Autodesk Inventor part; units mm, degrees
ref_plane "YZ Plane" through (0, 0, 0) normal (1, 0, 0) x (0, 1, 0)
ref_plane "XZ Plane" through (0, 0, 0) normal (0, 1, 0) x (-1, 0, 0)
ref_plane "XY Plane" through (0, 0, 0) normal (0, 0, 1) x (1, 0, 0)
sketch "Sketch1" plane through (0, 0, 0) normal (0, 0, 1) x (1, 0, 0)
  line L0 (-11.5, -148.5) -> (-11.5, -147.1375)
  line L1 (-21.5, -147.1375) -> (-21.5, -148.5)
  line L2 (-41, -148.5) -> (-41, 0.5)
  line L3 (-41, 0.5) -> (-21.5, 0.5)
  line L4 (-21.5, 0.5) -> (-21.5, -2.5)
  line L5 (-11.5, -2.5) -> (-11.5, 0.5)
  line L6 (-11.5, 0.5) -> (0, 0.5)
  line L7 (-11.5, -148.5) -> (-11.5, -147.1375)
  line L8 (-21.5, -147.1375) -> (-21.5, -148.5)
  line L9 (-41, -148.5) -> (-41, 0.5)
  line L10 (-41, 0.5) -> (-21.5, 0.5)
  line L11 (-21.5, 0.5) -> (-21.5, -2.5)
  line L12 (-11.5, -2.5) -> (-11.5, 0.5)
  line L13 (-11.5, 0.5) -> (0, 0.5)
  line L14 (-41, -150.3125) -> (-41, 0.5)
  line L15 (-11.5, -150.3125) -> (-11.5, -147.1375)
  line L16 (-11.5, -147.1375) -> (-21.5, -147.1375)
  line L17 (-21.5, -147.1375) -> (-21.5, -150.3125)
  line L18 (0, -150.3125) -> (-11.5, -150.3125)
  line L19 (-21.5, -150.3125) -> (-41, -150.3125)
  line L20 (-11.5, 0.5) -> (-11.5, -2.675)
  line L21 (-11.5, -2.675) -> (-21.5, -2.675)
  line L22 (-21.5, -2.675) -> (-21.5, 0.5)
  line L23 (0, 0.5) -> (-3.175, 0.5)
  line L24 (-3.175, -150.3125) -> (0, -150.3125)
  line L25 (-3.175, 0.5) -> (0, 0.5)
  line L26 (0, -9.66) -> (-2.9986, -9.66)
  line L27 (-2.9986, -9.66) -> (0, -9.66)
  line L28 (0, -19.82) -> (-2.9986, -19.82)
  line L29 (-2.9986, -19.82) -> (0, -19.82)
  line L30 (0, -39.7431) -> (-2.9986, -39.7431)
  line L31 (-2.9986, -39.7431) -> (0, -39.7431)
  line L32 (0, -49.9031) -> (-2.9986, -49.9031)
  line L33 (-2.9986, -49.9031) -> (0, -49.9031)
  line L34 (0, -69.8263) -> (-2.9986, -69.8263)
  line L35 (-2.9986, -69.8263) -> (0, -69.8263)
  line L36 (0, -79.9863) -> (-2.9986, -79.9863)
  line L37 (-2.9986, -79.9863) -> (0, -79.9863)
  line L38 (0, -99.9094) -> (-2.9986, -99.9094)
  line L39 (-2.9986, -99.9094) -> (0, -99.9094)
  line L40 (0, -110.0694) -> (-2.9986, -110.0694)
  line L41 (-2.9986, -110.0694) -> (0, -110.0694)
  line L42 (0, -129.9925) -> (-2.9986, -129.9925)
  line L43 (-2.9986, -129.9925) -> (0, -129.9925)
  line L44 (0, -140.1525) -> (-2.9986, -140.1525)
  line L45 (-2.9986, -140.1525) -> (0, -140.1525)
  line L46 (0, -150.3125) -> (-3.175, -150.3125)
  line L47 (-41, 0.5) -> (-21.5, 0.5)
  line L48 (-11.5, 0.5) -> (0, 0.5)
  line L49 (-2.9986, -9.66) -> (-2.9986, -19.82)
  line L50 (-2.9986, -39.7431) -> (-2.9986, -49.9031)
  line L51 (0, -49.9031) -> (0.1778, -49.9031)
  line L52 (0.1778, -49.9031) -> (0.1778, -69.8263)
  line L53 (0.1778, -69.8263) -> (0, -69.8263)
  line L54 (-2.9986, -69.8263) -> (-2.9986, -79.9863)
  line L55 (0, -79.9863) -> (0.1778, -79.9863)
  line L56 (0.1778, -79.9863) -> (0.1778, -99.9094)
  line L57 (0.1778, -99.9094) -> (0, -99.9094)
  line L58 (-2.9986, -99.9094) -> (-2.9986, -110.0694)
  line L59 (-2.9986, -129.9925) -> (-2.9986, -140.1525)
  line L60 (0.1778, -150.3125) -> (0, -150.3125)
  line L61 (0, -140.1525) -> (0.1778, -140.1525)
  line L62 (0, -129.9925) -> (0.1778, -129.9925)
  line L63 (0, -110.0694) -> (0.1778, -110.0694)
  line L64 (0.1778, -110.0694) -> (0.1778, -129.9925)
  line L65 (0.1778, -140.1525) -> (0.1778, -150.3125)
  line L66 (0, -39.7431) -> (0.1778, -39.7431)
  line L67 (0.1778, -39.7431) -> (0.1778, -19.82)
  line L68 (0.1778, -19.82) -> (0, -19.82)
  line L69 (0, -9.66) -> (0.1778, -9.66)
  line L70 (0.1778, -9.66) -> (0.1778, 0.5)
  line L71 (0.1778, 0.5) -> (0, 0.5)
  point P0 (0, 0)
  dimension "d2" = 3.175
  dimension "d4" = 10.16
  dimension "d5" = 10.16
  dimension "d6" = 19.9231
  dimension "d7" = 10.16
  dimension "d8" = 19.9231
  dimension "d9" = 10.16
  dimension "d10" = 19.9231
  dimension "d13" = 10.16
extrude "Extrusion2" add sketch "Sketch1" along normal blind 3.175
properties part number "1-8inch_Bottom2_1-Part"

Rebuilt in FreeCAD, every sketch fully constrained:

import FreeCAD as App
import Part
import Sketcher
from FreeCAD import Vector
Q = App.Units.Quantity

doc = App.newDocument("Part")
body = doc.addObject("PartDesign::Body", "Body")

# Sketch on XY plane
sketch1 = body.newObject("Sketcher::SketchObject", "Sketch")
sketch1.AttachmentSupport = (doc.getObject("XY_Plane"), [""])
sketch1.MapMode = "FlatFace"
sketch1.addGeometry([
    Part.LineSegment(Vector(-11.5, -147.1375, 0), Vector(-11.5, -150.3125, 0)),  # 0
    Part.LineSegment(Vector(-11.5, -150.3125, 0), Vector(0.1778, -150.3125, 0)),  # 1
    Part.LineSegment(Vector(0.1778, -150.3125, 0), Vector(0.1778, -140.1525, 0)),  # 2
    Part.LineSegment(Vector(0.1778, -140.1525, 0), Vector(-2.9986, -140.1525, 0)),  # 3
    Part.LineSegment(Vector(-2.9986, -140.1525, 0), Vector(-2.9986, -129.9925, 0)),  # 4
    Part.LineSegment(Vector(-2.9986, -129.9925, 0), Vector(0.1778, -129.9925, 0)),  # 5
    Part.LineSegment(Vector(0.1778, -129.9925, 0), Vector(0.1778, -110.0694, 0)),  # 6
    Part.LineSegment(Vector(0.1778, -110.0694, 0), Vector(-2.9986, -110.0694, 0)),  # 7
    Part.LineSegment(Vector(-2.9986, -110.0694, 0), Vector(-2.9986, -99.9094, 0)),  # 8
    Part.LineSegment(Vector(-2.9986, -99.9094, 0), Vector(0.1778, -99.9094, 0)),  # 9
    Part.LineSegment(Vector(0.1778, -99.9094, 0), Vector(0.1778, -79.9863, 0)),  # 10
    Part.LineSegment(Vector(0.1778, -79.9863, 0), Vector(-2.9986, -79.9863, 0)),  # 11
    Part.LineSegment(Vector(-2.9986, -79.9863, 0), Vector(-2.9986, -69.8263, 0)),  # 12
    Part.LineSegment(Vector(-2.9986, -69.8263, 0), Vector(0.1778, -69.8263, 0)),  # 13
    Part.LineSegment(Vector(0.1778, -69.8263, 0), Vector(0.1778, -49.9031, 0)),  # 14
    Part.LineSegment(Vector(0.1778, -49.9031, 0), Vector(-2.9986, -49.9031, 0)),  # 15
    Part.LineSegment(Vector(-2.9986, -49.9031, 0), Vector(-2.9986, -39.7431, 0)),  # 16
    Part.LineSegment(Vector(-2.9986, -39.7431, 0), Vector(0.1778, -39.7431, 0)),  # 17
    Part.LineSegment(Vector(0.1778, -39.7431, 0), Vector(0.1778, -19.82, 0)),  # 18
    Part.LineSegment(Vector(0.1778, -19.82, 0), Vector(-2.9986, -19.82, 0)),  # 19
    Part.LineSegment(Vector(-2.9986, -19.82, 0), Vector(-2.9986, -9.66, 0)),  # 20
    Part.LineSegment(Vector(-2.9986, -9.66, 0), Vector(0.1778, -9.66, 0)),  # 21
    Part.LineSegment(Vector(0.1778, -9.66, 0), Vector(0.1778, 0.5, 0)),  # 22
    Part.LineSegment(Vector(0.1778, 0.5, 0), Vector(-11.5, 0.5, 0)),  # 23
    Part.LineSegment(Vector(-11.5, 0.5, 0), Vector(-11.5, -2.675, 0)),  # 24
    Part.LineSegment(Vector(-11.5, -2.675, 0), Vector(-21.5, -2.675, 0)),  # 25
    Part.LineSegment(Vector(-21.5, -2.675, 0), Vector(-21.5, 0.5, 0)),  # 26
    Part.LineSegment(Vector(-21.5, 0.5, 0), Vector(-41, 0.5, 0)),  # 27
    Part.LineSegment(Vector(-41, 0.5, 0), Vector(-41, -150.3125, 0)),  # 28
    Part.LineSegment(Vector(-41, -150.3125, 0), Vector(-21.5, -150.3125, 0)),  # 29
    Part.LineSegment(Vector(-21.5, -150.3125, 0), Vector(-21.5, -147.1375, 0)),  # 30
    Part.LineSegment(Vector(-21.5, -147.1375, 0), Vector(-11.5, -147.1375, 0)),  # 31
], False)
sketch1.addConstraint([
    Sketcher.Constraint("Coincident", 0, 2, 1, 1),
    Sketcher.Constraint("Coincident", 1, 2, 2, 1),
    Sketcher.Constraint("Coincident", 2, 2, 3, 1),
    Sketcher.Constraint("Coincident", 3, 2, 4, 1),
    Sketcher.Constraint("Coincident", 4, 2, 5, 1),
    Sketcher.Constraint("Coincident", 5, 2, 6, 1),
    Sketcher.Constraint("Coincident", 6, 2, 7, 1),
    Sketcher.Constraint("Coincident", 7, 2, 8, 1),
    Sketcher.Constraint("Coincident", 8, 2, 9, 1),
    Sketcher.Constraint("Coincident", 9, 2, 10, 1),
    Sketcher.Constraint("Coincident", 10, 2, 11, 1),
    Sketcher.Constraint("Coincident", 11, 2, 12, 1),
    Sketcher.Constraint("Coincident", 12, 2, 13, 1),
    Sketcher.Constraint("Coincident", 13, 2, 14, 1),
    Sketcher.Constraint("Coincident", 14, 2, 15, 1),
    Sketcher.Constraint("Coincident", 15, 2, 16, 1),
    Sketcher.Constraint("Coincident", 16, 2, 17, 1),
    Sketcher.Constraint("Coincident", 17, 2, 18, 1),
    Sketcher.Constraint("Coincident", 18, 2, 19, 1),
    Sketcher.Constraint("Coincident", 19, 2, 20, 1),
    Sketcher.Constraint("Coincident", 20, 2, 21, 1),
    Sketcher.Constraint("Coincident", 21, 2, 22, 1),
    Sketcher.Constraint("Coincident", 22, 2, 23, 1),
    Sketcher.Constraint("Coincident", 23, 2, 24, 1),
    Sketcher.Constraint("Coincident", 24, 2, 25, 1),
    Sketcher.Constraint("Coincident", 25, 2, 26, 1),
    Sketcher.Constraint("Coincident", 26, 2, 27, 1),
    Sketcher.Constraint("Coincident", 27, 2, 28, 1),
    Sketcher.Constraint("Coincident", 28, 2, 29, 1),
    Sketcher.Constraint("Coincident", 29, 2, 30, 1),
    Sketcher.Constraint("Coincident", 30, 2, 31, 1),
    Sketcher.Constraint("Coincident", 31, 2, 0, 1),
    Sketcher.Constraint("Vertical", 0),
    Sketcher.Constraint("Horizontal", 1),
    Sketcher.Constraint("Vertical", 2),
    Sketcher.Constraint("Horizontal", 3),
    Sketcher.Constraint("Vertical", 4),
    Sketcher.Constraint("Horizontal", 5),
    Sketcher.Constraint("Vertical", 6),
    Sketcher.Constraint("Horizontal", 7),
    Sketcher.Constraint("Vertical", 8),
    Sketcher.Constraint("Horizontal", 9),
    Sketcher.Constraint("Vertical", 10),
    Sketcher.Constraint("Horizontal", 11),
    Sketcher.Constraint("Vertical", 12),
    Sketcher.Constraint("Horizontal", 13),
    Sketcher.Constraint("Vertical", 14),
    Sketcher.Constraint("Horizontal", 15),
    Sketcher.Constraint("Vertical", 16),
    Sketcher.Constraint("Horizontal", 17),
    Sketcher.Constraint("Vertical", 18),
    Sketcher.Constraint("Horizontal", 19),
    Sketcher.Constraint("Vertical", 20),
    Sketcher.Constraint("Horizontal", 21),
    Sketcher.Constraint("Vertical", 22),
    Sketcher.Constraint("Horizontal", 23),
    Sketcher.Constraint("Vertical", 24),
    Sketcher.Constraint("Horizontal", 25),
    Sketcher.Constraint("Vertical", 26),
    Sketcher.Constraint("Horizontal", 27),
    Sketcher.Constraint("Vertical", 28),
    Sketcher.Constraint("Horizontal", 29),
    Sketcher.Constraint("Vertical", 30),
    Sketcher.Constraint("Horizontal", 31),
    Sketcher.Constraint("Horizontal", 23, 2, 26, 2),
    Sketcher.Constraint("Horizontal", 1, 2, 28, 2),
    Sketcher.Constraint("Vertical", 2, 2, 5, 2),
    Sketcher.Constraint("Vertical", 4, 2, 7, 2),
    Sketcher.Constraint("Vertical", 6, 2, 9, 2),
    Sketcher.Constraint("Vertical", 8, 2, 11, 2),
    Sketcher.Constraint("Vertical", 10, 2, 13, 2),
    Sketcher.Constraint("Vertical", 12, 2, 15, 2),
    Sketcher.Constraint("Vertical", 14, 2, 17, 2),
    Sketcher.Constraint("Vertical", 16, 2, 19, 2),
    Sketcher.Constraint("Vertical", 18, 2, 21, 2),
    Sketcher.Constraint("Vertical", 0, 2, 23, 2),
    Sketcher.Constraint("Vertical", 26, 2, 29, 2),
    Sketcher.Constraint("Equal", 2, 4),
    Sketcher.Constraint("Equal", 4, 8),
    Sketcher.Constraint("Equal", 6, 10),
    Sketcher.Constraint("Equal", 8, 12),
    Sketcher.Constraint("Equal", 10, 14),
    Sketcher.Constraint("Equal", 12, 16),
    Sketcher.Constraint("Equal", 14, 18),
    Sketcher.Constraint("Equal", 16, 20),
    Sketcher.Constraint("Equal", 20, 22),
    Sketcher.Constraint("Equal", 0, 24),
    Sketcher.Constraint("DistanceY", 2, 1, 2, 2, Q("0.4 in")),
    Sketcher.Constraint("DistanceY", 0, 2, 0, 1, Q("0.125 in")),
    Sketcher.Constraint("DistanceY", 6, 1, 6, 2, Q("19.923 mm")),
    Sketcher.Constraint("DistanceX", 25, 2, 25, 1, Q("0.3937 in")),
    Sketcher.Constraint("DistanceX", -1, 1, 1, 2, Q("0.007 in")),
    Sketcher.Constraint("DistanceX", 1, 1, 1, 2, Q("11.6778 mm")),
    Sketcher.Constraint("DistanceX", 3, 2, 3, 1, Q("3.1764 mm")),
    Sketcher.Constraint("DistanceX", 27, 2, 27, 1, Q("19.5 mm")),
    Sketcher.Constraint("DistanceY", 14, 2, -1, 1, Q("1.9647 in")),
])
pad1 = body.newObject("PartDesign::Pad", "Pad")
pad1.Profile = sketch1
pad1.Length = Q("0.125 in")

doc.recompute()
